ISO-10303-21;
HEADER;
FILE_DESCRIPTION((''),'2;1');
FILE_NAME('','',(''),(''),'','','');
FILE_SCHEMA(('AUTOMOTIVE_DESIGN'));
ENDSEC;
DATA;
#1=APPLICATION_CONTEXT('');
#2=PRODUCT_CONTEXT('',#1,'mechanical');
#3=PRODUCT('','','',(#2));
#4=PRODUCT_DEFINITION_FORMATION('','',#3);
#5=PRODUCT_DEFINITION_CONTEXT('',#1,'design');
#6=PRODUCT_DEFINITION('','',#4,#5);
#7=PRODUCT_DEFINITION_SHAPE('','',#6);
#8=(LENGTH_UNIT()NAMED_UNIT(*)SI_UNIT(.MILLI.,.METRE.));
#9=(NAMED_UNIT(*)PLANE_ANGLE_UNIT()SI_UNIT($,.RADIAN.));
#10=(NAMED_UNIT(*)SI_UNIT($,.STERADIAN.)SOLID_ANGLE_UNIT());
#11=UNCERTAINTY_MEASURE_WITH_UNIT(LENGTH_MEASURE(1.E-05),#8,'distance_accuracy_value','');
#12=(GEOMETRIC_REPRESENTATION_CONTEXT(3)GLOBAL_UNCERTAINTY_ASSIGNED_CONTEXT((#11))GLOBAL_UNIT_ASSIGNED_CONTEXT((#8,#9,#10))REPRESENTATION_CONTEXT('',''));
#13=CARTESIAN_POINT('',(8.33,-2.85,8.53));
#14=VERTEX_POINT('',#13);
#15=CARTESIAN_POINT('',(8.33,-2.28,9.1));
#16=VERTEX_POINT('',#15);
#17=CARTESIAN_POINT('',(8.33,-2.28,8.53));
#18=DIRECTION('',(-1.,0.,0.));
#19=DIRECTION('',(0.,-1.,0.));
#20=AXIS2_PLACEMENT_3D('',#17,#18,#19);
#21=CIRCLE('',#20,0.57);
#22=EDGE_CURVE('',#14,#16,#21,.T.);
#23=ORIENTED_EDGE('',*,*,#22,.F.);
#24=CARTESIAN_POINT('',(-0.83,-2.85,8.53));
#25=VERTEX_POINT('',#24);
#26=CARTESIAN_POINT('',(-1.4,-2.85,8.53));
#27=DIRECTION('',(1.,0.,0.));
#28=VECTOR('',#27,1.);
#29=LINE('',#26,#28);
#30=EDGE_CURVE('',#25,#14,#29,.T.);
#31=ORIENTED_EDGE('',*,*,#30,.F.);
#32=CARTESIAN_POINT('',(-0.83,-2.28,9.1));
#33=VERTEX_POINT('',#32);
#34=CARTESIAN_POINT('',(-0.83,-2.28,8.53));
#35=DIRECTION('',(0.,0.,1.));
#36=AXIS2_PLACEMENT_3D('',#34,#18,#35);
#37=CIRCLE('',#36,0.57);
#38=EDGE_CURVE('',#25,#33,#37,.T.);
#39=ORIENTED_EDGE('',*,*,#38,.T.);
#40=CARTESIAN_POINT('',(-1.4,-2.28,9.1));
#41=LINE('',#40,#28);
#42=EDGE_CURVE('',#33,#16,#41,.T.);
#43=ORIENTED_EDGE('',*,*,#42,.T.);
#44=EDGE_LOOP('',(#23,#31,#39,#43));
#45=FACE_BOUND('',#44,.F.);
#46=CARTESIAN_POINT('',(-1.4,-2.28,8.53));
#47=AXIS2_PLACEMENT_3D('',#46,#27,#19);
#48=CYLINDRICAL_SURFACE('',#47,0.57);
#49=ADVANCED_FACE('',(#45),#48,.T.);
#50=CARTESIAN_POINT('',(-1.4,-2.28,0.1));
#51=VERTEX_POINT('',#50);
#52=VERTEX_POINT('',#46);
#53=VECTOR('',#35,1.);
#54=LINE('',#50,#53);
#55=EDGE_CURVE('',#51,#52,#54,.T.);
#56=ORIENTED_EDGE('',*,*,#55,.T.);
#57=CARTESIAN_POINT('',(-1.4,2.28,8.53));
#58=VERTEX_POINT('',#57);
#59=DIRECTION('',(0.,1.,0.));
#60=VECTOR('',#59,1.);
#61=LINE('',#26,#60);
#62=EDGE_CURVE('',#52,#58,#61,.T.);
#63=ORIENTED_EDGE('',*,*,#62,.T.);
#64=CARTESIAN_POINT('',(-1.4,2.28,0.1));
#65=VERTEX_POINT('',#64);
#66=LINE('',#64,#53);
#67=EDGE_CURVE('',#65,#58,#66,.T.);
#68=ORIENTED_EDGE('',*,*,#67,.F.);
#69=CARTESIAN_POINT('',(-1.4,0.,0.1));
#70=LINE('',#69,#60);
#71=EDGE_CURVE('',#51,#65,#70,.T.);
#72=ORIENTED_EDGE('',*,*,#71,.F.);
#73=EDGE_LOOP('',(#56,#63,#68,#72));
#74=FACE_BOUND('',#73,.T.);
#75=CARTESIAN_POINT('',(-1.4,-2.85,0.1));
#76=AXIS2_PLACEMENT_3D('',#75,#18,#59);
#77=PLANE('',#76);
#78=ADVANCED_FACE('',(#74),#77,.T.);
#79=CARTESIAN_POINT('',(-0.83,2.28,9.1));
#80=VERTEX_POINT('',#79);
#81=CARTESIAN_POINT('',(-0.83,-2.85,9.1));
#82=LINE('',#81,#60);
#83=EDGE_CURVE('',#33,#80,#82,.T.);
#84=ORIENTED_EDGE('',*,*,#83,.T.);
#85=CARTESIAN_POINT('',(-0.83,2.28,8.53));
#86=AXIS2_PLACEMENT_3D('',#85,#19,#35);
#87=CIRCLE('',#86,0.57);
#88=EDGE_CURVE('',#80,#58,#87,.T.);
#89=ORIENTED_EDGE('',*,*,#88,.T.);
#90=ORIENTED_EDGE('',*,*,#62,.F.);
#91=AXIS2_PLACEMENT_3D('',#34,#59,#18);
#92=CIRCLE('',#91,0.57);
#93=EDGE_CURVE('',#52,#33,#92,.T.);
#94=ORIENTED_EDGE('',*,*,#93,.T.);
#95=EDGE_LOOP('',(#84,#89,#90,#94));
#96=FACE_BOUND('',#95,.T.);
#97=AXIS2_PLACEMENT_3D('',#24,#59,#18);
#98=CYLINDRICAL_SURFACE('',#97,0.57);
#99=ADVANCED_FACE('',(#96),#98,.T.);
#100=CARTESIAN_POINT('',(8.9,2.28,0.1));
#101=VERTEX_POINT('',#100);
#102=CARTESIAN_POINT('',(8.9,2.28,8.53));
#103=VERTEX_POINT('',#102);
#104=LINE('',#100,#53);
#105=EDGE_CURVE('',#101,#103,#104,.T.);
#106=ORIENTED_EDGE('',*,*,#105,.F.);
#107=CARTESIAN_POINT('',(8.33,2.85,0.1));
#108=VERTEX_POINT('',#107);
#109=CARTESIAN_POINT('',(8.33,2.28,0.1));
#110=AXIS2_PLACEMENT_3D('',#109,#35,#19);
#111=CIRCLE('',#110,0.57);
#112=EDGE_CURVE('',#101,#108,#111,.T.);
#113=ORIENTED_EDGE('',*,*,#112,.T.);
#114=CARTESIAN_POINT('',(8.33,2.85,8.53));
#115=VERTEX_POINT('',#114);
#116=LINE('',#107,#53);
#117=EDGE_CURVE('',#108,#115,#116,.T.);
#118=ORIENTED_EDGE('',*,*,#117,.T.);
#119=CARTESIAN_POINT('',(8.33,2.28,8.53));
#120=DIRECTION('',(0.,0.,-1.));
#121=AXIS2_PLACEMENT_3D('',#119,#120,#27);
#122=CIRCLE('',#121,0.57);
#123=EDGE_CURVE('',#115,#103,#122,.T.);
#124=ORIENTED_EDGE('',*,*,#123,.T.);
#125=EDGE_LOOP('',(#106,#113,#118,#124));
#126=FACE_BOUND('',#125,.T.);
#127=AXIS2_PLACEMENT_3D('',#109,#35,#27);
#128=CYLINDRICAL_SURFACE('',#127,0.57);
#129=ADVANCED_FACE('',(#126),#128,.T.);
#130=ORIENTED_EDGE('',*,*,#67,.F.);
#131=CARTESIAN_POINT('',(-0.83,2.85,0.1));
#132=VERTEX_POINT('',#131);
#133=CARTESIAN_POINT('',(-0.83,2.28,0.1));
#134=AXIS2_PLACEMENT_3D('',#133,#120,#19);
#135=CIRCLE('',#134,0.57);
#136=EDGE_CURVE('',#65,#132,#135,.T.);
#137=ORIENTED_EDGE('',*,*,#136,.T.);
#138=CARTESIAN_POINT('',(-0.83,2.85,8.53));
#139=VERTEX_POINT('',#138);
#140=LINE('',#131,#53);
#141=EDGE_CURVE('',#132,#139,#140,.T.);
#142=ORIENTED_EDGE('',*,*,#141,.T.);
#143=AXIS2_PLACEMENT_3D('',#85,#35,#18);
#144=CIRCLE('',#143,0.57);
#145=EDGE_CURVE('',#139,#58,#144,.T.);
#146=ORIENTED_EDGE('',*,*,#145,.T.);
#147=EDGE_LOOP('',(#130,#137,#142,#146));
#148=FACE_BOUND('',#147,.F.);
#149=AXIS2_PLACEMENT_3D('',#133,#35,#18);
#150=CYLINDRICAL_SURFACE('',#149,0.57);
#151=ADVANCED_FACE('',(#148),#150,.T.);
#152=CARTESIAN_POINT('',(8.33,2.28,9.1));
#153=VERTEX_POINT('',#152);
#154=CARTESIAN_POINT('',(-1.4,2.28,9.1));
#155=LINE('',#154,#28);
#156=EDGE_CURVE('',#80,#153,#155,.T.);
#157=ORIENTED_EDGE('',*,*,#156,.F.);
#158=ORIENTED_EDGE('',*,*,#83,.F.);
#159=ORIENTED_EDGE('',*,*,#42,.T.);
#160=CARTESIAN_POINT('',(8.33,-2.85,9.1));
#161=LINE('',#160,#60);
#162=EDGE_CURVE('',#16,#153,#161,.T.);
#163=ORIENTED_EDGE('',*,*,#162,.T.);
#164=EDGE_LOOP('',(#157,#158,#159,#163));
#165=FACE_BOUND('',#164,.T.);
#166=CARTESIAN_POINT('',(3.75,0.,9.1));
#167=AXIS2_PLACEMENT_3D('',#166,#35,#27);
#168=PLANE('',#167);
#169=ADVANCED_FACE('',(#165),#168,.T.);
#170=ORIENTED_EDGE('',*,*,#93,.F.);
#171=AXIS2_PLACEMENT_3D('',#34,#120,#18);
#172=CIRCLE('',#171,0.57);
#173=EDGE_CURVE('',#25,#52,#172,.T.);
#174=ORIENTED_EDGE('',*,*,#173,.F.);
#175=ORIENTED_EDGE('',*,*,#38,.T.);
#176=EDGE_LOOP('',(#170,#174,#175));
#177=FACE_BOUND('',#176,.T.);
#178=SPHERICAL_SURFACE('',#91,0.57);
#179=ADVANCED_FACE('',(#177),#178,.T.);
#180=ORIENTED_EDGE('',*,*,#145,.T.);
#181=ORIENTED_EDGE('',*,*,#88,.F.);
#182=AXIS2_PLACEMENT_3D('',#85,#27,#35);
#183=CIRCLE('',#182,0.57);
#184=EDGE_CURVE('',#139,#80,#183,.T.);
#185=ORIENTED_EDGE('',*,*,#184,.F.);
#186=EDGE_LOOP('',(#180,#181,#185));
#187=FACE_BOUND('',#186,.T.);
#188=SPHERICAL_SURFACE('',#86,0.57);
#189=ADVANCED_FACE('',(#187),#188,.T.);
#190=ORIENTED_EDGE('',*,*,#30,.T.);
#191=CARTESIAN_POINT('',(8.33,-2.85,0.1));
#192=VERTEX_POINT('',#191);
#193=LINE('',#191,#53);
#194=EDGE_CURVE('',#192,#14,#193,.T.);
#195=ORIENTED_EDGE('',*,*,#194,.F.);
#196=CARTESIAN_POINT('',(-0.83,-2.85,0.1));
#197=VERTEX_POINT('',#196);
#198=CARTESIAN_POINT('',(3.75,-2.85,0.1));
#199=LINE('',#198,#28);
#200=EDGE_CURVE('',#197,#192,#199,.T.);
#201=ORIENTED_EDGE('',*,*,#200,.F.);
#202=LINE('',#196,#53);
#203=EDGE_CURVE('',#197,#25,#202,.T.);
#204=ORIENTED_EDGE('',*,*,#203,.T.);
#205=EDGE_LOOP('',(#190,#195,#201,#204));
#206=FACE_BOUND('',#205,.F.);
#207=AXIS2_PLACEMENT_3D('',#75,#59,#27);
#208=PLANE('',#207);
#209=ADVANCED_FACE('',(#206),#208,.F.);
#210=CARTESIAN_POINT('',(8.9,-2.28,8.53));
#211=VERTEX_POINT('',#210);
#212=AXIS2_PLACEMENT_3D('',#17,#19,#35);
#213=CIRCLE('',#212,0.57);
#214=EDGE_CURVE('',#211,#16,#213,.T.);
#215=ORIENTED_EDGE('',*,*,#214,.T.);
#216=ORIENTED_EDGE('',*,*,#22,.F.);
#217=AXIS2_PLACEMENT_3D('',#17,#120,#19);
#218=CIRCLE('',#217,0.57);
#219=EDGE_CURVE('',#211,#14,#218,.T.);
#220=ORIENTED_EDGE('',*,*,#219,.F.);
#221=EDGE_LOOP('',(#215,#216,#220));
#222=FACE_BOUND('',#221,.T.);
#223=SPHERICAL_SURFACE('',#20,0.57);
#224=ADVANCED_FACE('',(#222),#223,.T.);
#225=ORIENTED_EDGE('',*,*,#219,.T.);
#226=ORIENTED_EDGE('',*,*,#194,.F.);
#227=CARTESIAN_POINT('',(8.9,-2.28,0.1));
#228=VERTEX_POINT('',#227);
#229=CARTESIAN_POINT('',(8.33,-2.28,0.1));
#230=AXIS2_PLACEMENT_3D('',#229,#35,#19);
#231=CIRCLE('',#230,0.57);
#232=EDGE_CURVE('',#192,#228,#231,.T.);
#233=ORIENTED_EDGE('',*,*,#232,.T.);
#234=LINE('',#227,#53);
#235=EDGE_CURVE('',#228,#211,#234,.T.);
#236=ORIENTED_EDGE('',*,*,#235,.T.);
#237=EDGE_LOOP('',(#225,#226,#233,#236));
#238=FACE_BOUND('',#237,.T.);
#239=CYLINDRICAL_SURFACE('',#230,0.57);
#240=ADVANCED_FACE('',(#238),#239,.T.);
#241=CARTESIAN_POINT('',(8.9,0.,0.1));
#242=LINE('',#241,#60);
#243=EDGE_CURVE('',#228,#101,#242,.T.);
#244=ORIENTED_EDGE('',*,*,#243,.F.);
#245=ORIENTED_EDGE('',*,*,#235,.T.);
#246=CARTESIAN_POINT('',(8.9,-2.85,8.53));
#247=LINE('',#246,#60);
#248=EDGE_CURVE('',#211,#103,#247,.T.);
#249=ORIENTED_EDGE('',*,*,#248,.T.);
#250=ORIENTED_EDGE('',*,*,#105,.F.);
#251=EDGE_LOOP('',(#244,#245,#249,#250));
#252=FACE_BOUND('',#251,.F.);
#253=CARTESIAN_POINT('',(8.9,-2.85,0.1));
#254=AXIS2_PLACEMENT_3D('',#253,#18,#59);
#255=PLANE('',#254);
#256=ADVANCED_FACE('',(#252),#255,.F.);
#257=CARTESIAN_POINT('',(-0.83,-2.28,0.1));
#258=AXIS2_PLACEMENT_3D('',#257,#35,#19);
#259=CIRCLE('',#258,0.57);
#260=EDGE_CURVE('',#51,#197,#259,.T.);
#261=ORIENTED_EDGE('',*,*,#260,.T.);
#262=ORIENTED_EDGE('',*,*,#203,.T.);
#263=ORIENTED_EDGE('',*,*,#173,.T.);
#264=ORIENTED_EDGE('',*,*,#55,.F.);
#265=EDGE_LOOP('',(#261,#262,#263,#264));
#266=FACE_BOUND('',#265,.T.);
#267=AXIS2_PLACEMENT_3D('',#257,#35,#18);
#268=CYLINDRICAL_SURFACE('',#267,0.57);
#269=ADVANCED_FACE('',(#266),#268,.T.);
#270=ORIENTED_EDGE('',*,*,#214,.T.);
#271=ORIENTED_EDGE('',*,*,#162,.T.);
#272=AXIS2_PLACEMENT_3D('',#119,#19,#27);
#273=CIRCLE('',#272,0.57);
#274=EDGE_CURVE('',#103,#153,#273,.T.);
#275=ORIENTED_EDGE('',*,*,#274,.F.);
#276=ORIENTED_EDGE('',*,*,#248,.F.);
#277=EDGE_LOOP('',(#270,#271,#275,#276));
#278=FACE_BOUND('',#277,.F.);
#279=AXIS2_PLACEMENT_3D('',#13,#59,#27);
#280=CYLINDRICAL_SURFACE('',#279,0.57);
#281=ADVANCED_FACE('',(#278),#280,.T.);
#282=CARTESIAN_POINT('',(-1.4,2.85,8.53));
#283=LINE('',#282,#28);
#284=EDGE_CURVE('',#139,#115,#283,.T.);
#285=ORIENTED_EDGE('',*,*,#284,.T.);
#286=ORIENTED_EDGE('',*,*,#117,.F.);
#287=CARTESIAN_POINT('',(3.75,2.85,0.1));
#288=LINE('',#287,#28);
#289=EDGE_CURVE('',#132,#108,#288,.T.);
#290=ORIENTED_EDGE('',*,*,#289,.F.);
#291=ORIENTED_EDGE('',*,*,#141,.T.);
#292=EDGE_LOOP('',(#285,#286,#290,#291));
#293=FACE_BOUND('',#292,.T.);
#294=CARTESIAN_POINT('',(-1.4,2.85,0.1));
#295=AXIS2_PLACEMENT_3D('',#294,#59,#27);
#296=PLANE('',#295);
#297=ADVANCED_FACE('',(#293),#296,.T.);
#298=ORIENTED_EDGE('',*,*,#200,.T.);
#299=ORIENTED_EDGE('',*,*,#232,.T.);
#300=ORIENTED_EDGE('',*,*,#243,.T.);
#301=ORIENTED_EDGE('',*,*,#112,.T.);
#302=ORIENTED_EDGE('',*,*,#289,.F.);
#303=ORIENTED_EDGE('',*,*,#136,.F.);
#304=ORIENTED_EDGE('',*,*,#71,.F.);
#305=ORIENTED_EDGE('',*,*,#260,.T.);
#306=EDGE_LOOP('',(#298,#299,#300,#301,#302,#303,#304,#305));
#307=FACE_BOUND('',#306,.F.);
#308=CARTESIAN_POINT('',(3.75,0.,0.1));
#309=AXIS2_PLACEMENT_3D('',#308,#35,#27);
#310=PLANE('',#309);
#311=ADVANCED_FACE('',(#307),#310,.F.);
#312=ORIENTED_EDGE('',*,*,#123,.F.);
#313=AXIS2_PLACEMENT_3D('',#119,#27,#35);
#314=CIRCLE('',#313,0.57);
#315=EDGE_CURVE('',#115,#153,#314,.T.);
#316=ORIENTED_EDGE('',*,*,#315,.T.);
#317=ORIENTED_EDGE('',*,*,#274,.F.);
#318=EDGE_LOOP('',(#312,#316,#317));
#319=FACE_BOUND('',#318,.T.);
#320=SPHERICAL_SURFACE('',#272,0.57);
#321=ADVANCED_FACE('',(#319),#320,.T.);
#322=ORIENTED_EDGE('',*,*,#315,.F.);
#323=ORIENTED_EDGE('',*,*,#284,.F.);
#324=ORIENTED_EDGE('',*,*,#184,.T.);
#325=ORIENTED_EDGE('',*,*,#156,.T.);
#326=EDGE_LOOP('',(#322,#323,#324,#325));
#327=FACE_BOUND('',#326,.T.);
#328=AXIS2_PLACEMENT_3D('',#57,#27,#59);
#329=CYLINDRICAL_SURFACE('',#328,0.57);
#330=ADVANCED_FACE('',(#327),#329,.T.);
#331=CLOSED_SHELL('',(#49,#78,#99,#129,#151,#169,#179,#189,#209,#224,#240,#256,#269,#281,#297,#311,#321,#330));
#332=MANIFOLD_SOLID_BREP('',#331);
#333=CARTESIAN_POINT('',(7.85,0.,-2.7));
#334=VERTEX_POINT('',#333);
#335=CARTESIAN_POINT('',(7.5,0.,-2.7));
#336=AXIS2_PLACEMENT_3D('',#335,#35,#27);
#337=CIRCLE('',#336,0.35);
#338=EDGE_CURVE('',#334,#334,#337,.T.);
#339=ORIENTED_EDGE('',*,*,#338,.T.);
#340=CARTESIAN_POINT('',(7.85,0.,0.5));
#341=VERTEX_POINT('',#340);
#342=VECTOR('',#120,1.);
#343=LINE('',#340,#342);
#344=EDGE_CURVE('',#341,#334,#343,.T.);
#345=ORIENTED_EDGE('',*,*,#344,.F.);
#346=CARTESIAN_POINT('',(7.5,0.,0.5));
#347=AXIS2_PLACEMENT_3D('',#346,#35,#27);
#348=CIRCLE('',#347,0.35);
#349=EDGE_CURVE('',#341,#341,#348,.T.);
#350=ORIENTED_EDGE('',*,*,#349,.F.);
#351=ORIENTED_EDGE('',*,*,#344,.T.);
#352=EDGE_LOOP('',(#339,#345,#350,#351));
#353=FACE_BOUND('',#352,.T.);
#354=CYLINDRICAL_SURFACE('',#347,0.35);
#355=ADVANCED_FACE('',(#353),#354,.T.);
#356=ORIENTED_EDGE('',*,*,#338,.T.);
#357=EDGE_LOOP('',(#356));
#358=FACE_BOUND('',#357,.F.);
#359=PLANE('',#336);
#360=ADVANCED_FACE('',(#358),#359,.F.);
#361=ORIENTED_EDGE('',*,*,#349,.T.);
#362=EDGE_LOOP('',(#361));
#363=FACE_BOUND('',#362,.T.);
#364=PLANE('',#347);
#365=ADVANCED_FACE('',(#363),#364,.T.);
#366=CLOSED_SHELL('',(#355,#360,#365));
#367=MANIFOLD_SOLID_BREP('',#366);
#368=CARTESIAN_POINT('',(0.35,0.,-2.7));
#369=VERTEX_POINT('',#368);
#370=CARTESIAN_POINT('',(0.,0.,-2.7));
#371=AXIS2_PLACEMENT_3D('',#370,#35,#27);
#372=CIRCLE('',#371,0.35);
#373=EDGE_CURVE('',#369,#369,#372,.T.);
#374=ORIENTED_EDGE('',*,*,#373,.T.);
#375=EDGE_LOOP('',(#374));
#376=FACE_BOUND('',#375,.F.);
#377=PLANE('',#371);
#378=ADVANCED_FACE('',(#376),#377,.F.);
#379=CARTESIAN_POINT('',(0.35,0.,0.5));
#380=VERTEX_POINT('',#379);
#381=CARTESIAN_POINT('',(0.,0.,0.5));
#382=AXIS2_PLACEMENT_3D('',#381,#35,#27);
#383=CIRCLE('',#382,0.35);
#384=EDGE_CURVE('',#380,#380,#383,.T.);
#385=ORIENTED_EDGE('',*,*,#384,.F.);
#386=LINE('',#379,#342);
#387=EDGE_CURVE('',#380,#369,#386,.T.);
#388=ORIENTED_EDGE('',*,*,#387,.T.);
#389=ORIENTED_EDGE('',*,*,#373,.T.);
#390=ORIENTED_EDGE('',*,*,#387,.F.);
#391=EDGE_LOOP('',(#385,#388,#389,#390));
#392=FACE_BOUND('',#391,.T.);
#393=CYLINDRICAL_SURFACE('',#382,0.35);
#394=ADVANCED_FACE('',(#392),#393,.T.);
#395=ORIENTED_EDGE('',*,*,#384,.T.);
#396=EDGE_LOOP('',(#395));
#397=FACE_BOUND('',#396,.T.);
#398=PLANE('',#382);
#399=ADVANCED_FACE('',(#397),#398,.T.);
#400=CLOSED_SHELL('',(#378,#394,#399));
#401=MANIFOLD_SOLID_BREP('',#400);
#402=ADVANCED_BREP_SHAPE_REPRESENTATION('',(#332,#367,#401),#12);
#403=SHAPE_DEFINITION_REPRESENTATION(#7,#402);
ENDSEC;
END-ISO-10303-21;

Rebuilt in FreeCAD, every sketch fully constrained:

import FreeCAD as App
import Part
import Sketcher
from FreeCAD import Vector
Q = App.Units.Quantity


def edges_at(feature, points):
    """Names of the edges that pass closest to the given points."""
    edges = feature.Shape.Edges
    near = lambda p: min(range(len(edges)), key=lambda i: edges[i].distToShape(Part.Vertex(*p))[0])
    return sorted({f"Edge{near(p) + 1}" for p in points})

doc = App.newDocument("Part")
body = doc.addObject("PartDesign::Body", "Body")

# Sketch on XY plane
sketch1 = body.newObject("Sketcher::SketchObject", "Sketch")
sketch1.AttachmentSupport = (doc.getObject("XY_Plane"), [""])
sketch1.MapMode = "FlatFace"
sketch1.AttachmentOffset = App.Placement(Vector(0, 0, 0.1), App.Rotation())
sketch1.addGeometry(Part.LineSegment(Vector(-1, 3, 0), Vector(-1, -3, 0)), False)
sketch1.addGeometry(Part.LineSegment(Vector(-1, -3, 0), Vector(9, -3, 0)), False)
sketch1.addGeometry(Part.LineSegment(Vector(9, -3, 0), Vector(9, 3, 0)), False)
sketch1.addGeometry(Part.LineSegment(Vector(9, 3, 0), Vector(-1, 3, 0)), False)
sketch1.addConstraint(Sketcher.Constraint("Coincident", 0, 2, 1, 1))
sketch1.addConstraint(Sketcher.Constraint("Coincident", 1, 2, 2, 1))
sketch1.addConstraint(Sketcher.Constraint("Coincident", 2, 2, 3, 1))
sketch1.addConstraint(Sketcher.Constraint("Coincident", 3, 2, 0, 1))
sketch1.addConstraint(Sketcher.Constraint("Vertical", 0))
sketch1.addConstraint(Sketcher.Constraint("Horizontal", 1))
sketch1.addConstraint(Sketcher.Constraint("Vertical", 2))
sketch1.addConstraint(Sketcher.Constraint("Horizontal", 3))
sketch1.addConstraint(Sketcher.Constraint("DistanceX", 1, 1, 1, 2, Q("10.3 mm")))
sketch1.addConstraint(Sketcher.Constraint("DistanceY", 0, 2, 0, 1, Q("5.7 mm")))
sketch1.addConstraint(Sketcher.Constraint("DistanceX", 0, 2, -1, 1, Q("1.4 mm")))
sketch1.addConstraint(Sketcher.Constraint("DistanceY", 0, 2, -1, 1, Q("2.85 mm")))
pad1 = body.newObject("PartDesign::Pad", "Pad")
pad1.Profile = sketch1
pad1.Length = 9
doc.recompute()

fillet = body.newObject("PartDesign::Fillet", "Fillet")
fillet.Base = (pad1, edges_at(pad1, [
    (-1.4, 0, 9.1),
    (-1.4, -2.85, 4.6),
    (3.75, -2.85, 9.1),
    (8.9, -2.85, 4.6),
    (8.9, 0, 9.1),
    (8.9, 2.85, 4.6),
    (3.75, 2.85, 9.1),
    (-1.4, 2.85, 4.6),
]))
fillet.Radius = 0.57
body2 = doc.addObject("PartDesign::Body", "Body001")
body2.AllowCompound = True

# Sketch on XY plane
sketch2 = body2.newObject("Sketcher::SketchObject", "Sketch001")
sketch2.AttachmentSupport = (doc.getObject("XY_Plane001"), [""])
sketch2.MapMode = "FlatFace"
sketch2.AttachmentOffset = App.Placement(Vector(0, 0, 0.5), App.Rotation())
sketch2.addGeometry(Part.Circle(Vector(0, 0, 0), Vector(0, 0, 1), 0.35), False)
sketch2.addGeometry(Part.Circle(Vector(7.5, 0, 0), Vector(0, 0, 1), 0.35), False)
sketch2.addConstraint(Sketcher.Constraint("Coincident", 0, 3, -1, 1))
sketch2.addConstraint(Sketcher.Constraint("Equal", 0, 1))
sketch2.addConstraint(Sketcher.Constraint("PointOnObject", 1, 3, -1))
sketch2.addConstraint(Sketcher.Constraint("Diameter", 0, Q("0.7 mm")))
sketch2.addConstraint(Sketcher.Constraint("DistanceX", -1, 1, 1, 3, Q("7.5 mm")))
pad2 = body2.newObject("PartDesign::Pad", "Pad001")
pad2.Profile = sketch2
pad2.Length = 3.2
pad2.Reversed = True

doc.recompute()
